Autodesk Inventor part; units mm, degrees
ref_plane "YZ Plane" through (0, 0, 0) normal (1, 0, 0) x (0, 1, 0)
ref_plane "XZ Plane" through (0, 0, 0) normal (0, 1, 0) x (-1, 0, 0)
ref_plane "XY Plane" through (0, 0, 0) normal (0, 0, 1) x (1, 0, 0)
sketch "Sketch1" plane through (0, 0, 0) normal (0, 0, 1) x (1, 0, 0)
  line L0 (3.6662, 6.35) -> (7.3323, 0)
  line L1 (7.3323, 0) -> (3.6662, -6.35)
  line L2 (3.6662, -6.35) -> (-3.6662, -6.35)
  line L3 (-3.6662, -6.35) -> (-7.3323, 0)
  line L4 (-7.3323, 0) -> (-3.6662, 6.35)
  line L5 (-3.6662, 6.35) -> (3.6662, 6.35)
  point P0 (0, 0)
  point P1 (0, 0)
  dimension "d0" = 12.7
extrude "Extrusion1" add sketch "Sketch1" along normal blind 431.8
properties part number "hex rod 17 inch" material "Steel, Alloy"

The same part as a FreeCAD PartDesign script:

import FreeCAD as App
import Part
import Sketcher

V = App.Vector
Q = App.Units.Quantity

doc = App.newDocument("Part")
params = doc.addObject("Spreadsheet::Sheet", "Params")
for row, (alias, value) in enumerate([
    ("pad1_length", "17 in"),
], start=1):
    params.set(f"A{row}", alias)
    params.set(f"B{row}", "=" + value)
    params.setAlias(f"B{row}", alias)

body = doc.addObject("PartDesign::Body", "Body")

sketch1 = body.newObject("Sketcher::SketchObject", "Sketch")
sketch1.AttachmentSupport = (doc.getObject("XY_Plane"), [""])
sketch1.MapMode = "FlatFace"
sketch1.addGeometry([
    Part.LineSegment(V(7.3323, 0, 0), V(3.6662, 6.35, 0)),
    Part.LineSegment(V(3.6662, 6.35, 0), V(-3.6662, 6.35, 0)),
    Part.LineSegment(V(-3.6662, 6.35, 0), V(-7.3323, 0, 0)),
    Part.LineSegment(V(-7.3323, 0, 0), V(-3.6662, -6.35, 0)),
    Part.LineSegment(V(-3.6662, -6.35, 0), V(3.6662, -6.35, 0)),
    Part.LineSegment(V(3.6662, -6.35, 0), V(7.3323, 0, 0)),
], False)
sketch1.addConstraint([
    Sketcher.Constraint("Coincident", 0, 2, 1, 1),
    Sketcher.Constraint("Coincident", 1, 2, 2, 1),
    Sketcher.Constraint("Coincident", 2, 2, 3, 1),
    Sketcher.Constraint("Coincident", 3, 2, 4, 1),
    Sketcher.Constraint("Coincident", 4, 2, 5, 1),
    Sketcher.Constraint("Coincident", 5, 2, 0, 1),
    Sketcher.Constraint("Horizontal", 1),
    Sketcher.Constraint("Horizontal", 4),
    Sketcher.Constraint("Symmetric", 0, 2, 3, 2, -1, 1),
    Sketcher.Constraint("Symmetric", 2, 2, 5, 2, -1, 1),
    Sketcher.Constraint("PointOnObject", 2, 2, -1),
    Sketcher.Constraint("Parallel", 2, 5),
    Sketcher.Constraint("Vertical", 1, 2, 3, 2),
    Sketcher.Constraint("DistanceY", 3, 2, 1, 2, Q("0.5 in")),
    Sketcher.Constraint("Angle", 0, Q("119.9995 deg")),
    Sketcher.Constraint("DistanceX", 2, 2, 0, 2, Q("0.433 in")),
])
pad1 = body.newObject("PartDesign::Pad", "Pad")
pad1.Profile = sketch1
pad1.setExpression("Length", "Params.pad1_length")

doc.recompute()
